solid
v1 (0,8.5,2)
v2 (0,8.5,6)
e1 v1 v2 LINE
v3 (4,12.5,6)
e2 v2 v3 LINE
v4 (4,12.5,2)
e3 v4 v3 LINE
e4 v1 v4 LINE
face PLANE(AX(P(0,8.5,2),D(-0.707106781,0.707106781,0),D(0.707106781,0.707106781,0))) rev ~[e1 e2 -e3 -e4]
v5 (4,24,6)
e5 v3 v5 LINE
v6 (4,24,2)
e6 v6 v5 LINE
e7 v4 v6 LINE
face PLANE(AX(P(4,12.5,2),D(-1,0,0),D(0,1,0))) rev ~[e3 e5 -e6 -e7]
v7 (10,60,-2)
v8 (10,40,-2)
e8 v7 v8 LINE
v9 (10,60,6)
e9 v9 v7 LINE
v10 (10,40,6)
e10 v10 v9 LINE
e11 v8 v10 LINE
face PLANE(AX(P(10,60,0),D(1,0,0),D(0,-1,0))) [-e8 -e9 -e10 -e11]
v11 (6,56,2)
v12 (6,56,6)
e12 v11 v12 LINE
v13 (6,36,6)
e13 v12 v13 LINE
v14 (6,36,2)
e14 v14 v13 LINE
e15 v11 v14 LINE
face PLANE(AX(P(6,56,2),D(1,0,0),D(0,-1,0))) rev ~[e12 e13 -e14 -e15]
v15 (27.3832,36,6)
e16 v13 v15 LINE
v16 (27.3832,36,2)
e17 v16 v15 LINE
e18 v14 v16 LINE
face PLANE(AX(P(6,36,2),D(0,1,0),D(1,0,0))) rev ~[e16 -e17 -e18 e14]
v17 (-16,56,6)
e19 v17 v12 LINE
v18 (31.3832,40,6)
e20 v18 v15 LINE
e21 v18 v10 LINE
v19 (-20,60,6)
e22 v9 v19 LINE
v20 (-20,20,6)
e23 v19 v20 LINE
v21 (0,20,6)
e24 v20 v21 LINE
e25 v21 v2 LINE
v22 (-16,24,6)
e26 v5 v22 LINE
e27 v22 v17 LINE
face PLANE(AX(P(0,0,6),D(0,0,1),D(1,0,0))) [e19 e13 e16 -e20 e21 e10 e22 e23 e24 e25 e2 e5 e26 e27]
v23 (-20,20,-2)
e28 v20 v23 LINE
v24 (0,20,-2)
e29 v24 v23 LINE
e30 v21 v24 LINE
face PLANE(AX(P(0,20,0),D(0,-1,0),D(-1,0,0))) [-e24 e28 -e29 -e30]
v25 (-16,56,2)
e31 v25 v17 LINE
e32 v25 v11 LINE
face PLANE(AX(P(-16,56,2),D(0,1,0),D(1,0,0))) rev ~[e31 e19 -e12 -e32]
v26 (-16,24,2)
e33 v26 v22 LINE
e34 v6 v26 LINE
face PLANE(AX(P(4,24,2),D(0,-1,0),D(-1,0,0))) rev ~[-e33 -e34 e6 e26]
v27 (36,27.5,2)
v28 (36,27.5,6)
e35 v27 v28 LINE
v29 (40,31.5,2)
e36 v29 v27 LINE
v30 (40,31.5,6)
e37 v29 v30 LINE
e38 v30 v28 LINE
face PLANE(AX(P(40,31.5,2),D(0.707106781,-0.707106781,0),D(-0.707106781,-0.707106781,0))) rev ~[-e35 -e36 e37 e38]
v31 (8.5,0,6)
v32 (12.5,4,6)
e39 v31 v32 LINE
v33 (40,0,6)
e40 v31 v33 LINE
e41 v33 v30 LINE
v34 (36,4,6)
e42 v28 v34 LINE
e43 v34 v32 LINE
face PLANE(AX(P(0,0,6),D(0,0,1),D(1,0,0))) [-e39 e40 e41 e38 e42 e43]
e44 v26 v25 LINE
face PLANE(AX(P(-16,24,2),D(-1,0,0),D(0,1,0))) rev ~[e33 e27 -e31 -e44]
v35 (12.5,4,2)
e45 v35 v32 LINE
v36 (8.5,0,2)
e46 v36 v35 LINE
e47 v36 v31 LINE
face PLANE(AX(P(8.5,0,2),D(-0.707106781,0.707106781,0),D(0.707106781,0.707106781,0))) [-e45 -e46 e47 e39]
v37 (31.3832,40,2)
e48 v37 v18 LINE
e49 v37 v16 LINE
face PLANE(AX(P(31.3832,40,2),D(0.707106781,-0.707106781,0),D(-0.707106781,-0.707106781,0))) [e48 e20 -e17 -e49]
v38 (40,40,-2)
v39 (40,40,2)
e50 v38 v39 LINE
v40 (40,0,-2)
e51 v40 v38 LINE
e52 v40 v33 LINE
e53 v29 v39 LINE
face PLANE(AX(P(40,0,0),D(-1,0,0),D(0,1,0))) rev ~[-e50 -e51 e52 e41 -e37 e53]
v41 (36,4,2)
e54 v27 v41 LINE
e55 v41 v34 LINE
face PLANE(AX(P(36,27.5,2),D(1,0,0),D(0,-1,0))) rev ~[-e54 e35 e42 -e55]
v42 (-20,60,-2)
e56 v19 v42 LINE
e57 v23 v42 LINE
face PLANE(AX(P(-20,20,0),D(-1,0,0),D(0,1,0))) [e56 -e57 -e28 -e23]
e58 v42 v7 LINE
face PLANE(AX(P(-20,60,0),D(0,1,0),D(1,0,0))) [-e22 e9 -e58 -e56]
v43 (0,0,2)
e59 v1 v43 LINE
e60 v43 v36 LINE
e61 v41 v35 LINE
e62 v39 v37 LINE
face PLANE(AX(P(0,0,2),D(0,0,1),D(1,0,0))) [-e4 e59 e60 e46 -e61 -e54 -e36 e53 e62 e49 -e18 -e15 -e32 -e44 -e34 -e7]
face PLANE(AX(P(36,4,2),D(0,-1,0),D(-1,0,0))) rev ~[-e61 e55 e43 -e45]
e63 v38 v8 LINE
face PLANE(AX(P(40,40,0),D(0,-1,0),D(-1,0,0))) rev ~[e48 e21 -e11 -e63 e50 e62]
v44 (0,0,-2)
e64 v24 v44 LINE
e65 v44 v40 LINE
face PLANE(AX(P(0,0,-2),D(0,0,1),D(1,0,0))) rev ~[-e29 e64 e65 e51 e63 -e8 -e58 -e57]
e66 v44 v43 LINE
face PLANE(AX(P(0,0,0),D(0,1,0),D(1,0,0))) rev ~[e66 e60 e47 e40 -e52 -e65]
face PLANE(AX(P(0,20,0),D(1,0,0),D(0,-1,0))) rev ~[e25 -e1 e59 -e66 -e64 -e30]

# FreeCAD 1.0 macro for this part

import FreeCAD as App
import Part
import Sketcher
from FreeCAD import Vector


def add_polygon(sketch, points):
    """Adds a closed chain of lines whose ends are joined by coincident constraints."""
    first, n = sketch.GeometryCount, len(points)
    for a, b in zip(points, points[1:] + points[:1]):
        sketch.addGeometry(Part.LineSegment(App.Vector(*a, 0), App.Vector(*b, 0)), False)
    for i in range(n):
        sketch.addConstraint(Sketcher.Constraint("Coincident", first + i, 2, first + (i + 1) % n, 1))

doc = App.newDocument("Part")
body = doc.addObject("PartDesign::Body", "Body")

# Sketch on XY plane
sketch1 = body.newObject("Sketcher::SketchObject", "Sketch")
sketch1.AttachmentSupport = (doc.getObject("XY_Plane"), [""])
sketch1.MapMode = "FlatFace"
add_polygon(sketch1, [(0, 20), (0, 0), (40, 0), (40, 40), (10, 40), (10, 60), (-20, 60), (-20, 20)])  # lines 0-7
sketch1.addConstraint([
    Sketcher.Constraint("Vertical", 0),
    Sketcher.Constraint("Horizontal", 1),
    Sketcher.Constraint("Vertical", 2),
    Sketcher.Constraint("Horizontal", 3),
    Sketcher.Constraint("Vertical", 4),
    Sketcher.Constraint("Horizontal", 5),
    Sketcher.Constraint("Vertical", 6),
    Sketcher.Constraint("Horizontal", 7),
    Sketcher.Constraint("Coincident", 0, 2, -1, 1),
    Sketcher.Constraint("Equal", 3, 5),
    Sketcher.Constraint("Equal", 7, 0),
    Sketcher.Constraint("Equal", 1, 2),
    Sketcher.Constraint("Equal", 0, 4),
    Sketcher.Constraint("DistanceX", 1, 1, 1, 2, 40.0),
    Sketcher.Constraint("DistanceX", 3, 2, 3, 1, 30.0),
])
pad1 = body.newObject("PartDesign::Pad", "Pad")
pad1.Profile = sketch1
pad1.Length = 4
pad1.Midplane = True

# Sketch on XY plane
sketch2 = body.newObject("Sketcher::SketchObject", "Sketch001")
sketch2.AttachmentSupport = (doc.getObject("XY_Plane"), [""])
sketch2.MapMode = "FlatFace"
sketch2.AttachmentOffset = App.Placement(Vector(0, 0, 2), App.Rotation())
add_polygon(sketch2, [(-20, 20), (0, 20), (0, 8), (4, 12), (4, 24), (-16, 24), (-16, 56), (6, 56), (6, 36), (27, 36), (31, 40), (10, 40), (10, 60), (-20, 60)])  # lines 0-13
add_polygon(sketch2, [(12, 4), (8, 0), (40, 0), (40, 32), (36, 28), (36, 4)])  # lines 14-19
sketch2.addConstraint([
    Sketcher.Constraint("Horizontal", 0),
    Sketcher.Constraint("Vertical", 1),
    Sketcher.Constraint("Vertical", 3),
    Sketcher.Constraint("Horizontal", 4),
    Sketcher.Constraint("Vertical", 5),
    Sketcher.Constraint("Horizontal", 6),
    Sketcher.Constraint("Vertical", 7),
    Sketcher.Constraint("Horizontal", 8),
    Sketcher.Constraint("Horizontal", 10),
    Sketcher.Constraint("Vertical", 11),
    Sketcher.Constraint("Horizontal", 12),
    Sketcher.Constraint("Vertical", 13),
    Sketcher.Constraint("Horizontal", 15),
    Sketcher.Constraint("Vertical", 16),
    Sketcher.Constraint("Vertical", 18),
    Sketcher.Constraint("Horizontal", 19),
    Sketcher.Constraint("PointOnObject", 0, 2, -2),
    Sketcher.Constraint("PointOnObject", 14, 2, -1),
    Sketcher.Constraint("Parallel", 2, 9),
    Sketcher.Constraint("Parallel", 9, 14),
    Sketcher.Constraint("Parallel", 14, 17),
    Sketcher.Constraint("Equal", 0, 4),
    Sketcher.Constraint("Equal", 8, 10),
    Sketcher.Constraint("Equal", 1, 3),
    Sketcher.Constraint("Equal", 4, 7),
    Sketcher.Constraint("Equal", 7, 11),
    Sketcher.Constraint("Equal", 15, 16),
    Sketcher.Constraint("Equal", 19, 18),
    Sketcher.Constraint("Equal", 2, 9),
    Sketcher.Constraint("Equal", 9, 14),
    Sketcher.Constraint("Equal", 14, 17),
    Sketcher.Constraint("DistanceX", 6, 1, 6, 2, 22.0),
    Sketcher.Constraint("DistanceY", 5, 1, 5, 2, 32.0),
    Sketcher.Constraint("DistanceX", -1, 1, 2, 2, 4.0),
    Sketcher.Constraint("DistanceX", 2, 2, 18, 2, 32.0),
    Sketcher.Constraint("DistanceY", -1, 1, 1, 2, 8.5),
    Sketcher.Constraint("DistanceX", -1, 1, 14, 2, 8.5),
    Sketcher.Constraint("DistanceY", 16, 2, 9, 2, 8.5),
    Sketcher.Constraint("DistanceX", 0, 1, 0, 2, 20.0),
    Sketcher.Constraint("DistanceX", 8, 1, 8, 2, 21.3832),
])
pad2 = body.newObject("PartDesign::Pad", "Pad001")
pad2.Profile = sketch2
pad2.Length = 4

doc.recompute()
